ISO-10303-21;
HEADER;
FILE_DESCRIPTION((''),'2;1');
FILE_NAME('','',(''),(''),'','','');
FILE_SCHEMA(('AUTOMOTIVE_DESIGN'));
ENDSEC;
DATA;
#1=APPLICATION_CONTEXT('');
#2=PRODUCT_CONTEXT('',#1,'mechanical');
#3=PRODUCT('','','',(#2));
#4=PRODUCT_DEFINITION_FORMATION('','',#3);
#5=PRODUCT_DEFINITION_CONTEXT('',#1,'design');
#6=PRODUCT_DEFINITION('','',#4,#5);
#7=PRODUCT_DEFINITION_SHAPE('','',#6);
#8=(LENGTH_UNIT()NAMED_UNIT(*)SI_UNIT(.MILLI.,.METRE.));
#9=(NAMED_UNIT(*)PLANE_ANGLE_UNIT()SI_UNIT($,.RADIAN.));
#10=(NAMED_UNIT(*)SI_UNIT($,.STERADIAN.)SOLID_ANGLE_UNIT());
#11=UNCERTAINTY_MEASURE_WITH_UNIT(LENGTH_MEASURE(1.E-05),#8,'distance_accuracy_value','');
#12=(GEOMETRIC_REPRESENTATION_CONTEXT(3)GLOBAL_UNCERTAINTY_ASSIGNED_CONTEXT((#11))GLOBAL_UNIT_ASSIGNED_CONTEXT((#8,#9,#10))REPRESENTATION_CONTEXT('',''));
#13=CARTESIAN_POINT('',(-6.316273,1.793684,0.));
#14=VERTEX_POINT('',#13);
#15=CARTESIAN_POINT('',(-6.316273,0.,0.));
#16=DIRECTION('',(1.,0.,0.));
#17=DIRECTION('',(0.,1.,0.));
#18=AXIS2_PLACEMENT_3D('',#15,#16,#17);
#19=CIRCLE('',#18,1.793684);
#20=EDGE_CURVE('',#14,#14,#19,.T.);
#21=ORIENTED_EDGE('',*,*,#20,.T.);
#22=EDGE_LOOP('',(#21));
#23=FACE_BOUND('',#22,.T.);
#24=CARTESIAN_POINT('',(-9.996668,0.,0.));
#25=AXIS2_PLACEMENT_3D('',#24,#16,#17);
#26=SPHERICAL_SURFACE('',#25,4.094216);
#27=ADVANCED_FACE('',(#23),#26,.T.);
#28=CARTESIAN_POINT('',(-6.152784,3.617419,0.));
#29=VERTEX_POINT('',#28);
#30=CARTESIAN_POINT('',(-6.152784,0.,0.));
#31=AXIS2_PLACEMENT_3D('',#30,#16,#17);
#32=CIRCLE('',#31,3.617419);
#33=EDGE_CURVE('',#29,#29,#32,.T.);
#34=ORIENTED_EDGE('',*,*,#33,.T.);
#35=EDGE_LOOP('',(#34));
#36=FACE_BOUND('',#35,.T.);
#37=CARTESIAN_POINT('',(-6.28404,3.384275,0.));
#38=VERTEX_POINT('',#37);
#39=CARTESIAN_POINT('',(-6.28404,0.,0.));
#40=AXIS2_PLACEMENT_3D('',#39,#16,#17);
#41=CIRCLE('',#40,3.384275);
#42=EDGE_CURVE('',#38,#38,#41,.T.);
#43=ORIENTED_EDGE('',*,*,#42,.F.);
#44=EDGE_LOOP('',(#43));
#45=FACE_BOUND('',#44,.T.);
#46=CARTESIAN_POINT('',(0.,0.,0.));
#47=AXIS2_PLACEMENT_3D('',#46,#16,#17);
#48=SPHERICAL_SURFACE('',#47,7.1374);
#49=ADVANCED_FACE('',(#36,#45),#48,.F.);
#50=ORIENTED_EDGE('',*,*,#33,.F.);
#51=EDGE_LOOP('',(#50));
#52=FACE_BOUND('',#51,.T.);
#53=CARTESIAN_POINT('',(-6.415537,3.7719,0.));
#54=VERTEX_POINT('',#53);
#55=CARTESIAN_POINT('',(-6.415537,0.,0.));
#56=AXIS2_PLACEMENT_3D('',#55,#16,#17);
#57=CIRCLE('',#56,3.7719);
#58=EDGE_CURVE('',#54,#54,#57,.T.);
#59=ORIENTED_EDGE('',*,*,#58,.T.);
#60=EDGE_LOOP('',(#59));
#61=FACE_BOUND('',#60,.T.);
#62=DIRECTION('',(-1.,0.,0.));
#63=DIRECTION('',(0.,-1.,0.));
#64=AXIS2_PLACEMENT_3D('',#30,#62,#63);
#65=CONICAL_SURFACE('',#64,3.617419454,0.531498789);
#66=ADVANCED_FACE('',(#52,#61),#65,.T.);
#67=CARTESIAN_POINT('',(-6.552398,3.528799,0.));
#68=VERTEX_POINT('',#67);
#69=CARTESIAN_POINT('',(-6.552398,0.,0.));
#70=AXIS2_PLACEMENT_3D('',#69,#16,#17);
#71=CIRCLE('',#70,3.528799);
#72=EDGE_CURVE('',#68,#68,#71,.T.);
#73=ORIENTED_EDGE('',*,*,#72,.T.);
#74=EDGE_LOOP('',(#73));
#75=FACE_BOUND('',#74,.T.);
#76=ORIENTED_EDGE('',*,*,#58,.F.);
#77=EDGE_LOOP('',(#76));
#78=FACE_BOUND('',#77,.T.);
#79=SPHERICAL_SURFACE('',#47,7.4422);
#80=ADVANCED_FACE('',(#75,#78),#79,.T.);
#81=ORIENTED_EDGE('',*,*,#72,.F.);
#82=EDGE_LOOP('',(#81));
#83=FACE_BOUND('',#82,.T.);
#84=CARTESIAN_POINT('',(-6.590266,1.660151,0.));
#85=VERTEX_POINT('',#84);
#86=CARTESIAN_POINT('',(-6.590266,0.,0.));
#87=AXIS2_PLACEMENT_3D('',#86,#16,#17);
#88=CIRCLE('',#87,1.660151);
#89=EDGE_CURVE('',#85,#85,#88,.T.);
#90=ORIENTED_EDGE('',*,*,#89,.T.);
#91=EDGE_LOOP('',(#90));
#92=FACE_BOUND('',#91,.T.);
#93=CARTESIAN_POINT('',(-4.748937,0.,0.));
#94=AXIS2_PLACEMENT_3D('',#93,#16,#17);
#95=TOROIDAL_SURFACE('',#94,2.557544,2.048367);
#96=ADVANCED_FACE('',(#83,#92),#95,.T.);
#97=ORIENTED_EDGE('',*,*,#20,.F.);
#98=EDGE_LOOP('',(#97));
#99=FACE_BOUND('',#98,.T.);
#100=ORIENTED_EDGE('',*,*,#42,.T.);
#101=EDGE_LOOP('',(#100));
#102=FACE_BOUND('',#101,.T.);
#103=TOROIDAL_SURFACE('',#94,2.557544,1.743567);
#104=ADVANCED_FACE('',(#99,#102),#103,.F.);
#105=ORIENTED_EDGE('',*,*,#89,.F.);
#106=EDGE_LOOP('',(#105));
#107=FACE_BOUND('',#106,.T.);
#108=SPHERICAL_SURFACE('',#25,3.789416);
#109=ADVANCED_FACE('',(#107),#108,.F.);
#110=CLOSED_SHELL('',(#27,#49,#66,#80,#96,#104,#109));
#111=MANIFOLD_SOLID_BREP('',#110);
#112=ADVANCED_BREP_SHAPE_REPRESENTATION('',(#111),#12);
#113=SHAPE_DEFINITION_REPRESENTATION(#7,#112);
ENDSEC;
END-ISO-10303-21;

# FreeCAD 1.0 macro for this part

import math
import FreeCAD as App
import Part
import Sketcher
from FreeCAD import Vector
Q = App.Units.Quantity

doc = App.newDocument("Part")
body = doc.addObject("PartDesign::Body", "Body")

sketch1 = body.newObject("Sketcher::SketchObject", "Sketch")
sketch1.AttachmentSupport = (doc.getObject("XY_Plane"), [""])
sketch1.MapMode = "FlatFace"
sketch1.addGeometry([
    Part.LineSegment(Vector(-6.207252, 0, 0), Vector(-5.902452, 0, 0)),
    Part.ArcOfCircle(Part.Circle(Vector(-9.996668, 0, 0), Vector(0, 0, 1), 4.094216), math.radians(0), math.radians(25.982842)),
    Part.ArcOfCircle(Part.Circle(Vector(-4.748937, 2.557544, 0), Vector(0, 0, 1), 1.743567), math.radians(151.695278), math.radians(205.982842)),
    Part.ArcOfCircle(Part.Circle(Vector(0.000001, 0, 0), Vector(0, 0, 1), 7.137401), math.radians(149.547363), math.radians(151.695277)),
    Part.LineSegment(Vector(-6.152784, 3.617419, 0), Vector(-6.415537, 3.7719, 0)),
    Part.ArcOfCircle(Part.Circle(Vector(0, 0, 0), Vector(0, 0, 1), 7.4422), math.radians(149.547362), math.radians(151.695277)),
    Part.ArcOfCircle(Part.Circle(Vector(-4.748937, 2.557544, 0), Vector(0, 0, 1), 2.048367), math.radians(151.695278), math.radians(205.982842)),
    Part.ArcOfCircle(Part.Circle(Vector(-9.996668, 0, 0), Vector(0, 0, 1), 3.789416), math.radians(0), math.radians(25.982842)),
], False)
sketch1.addConstraint([
    Sketcher.Constraint("Coincident", 0, 2, 1, 1),
    Sketcher.Constraint("Tangent", 1, 2, 2, 2),
    Sketcher.Constraint("Tangent", 2, 1, 3, 2),
    Sketcher.Constraint("Coincident", 3, 1, 4, 1),
    Sketcher.Constraint("Coincident", 4, 2, 5, 1),
    Sketcher.Constraint("Tangent", 5, 2, 6, 1),
    Sketcher.Constraint("Tangent", 6, 2, 7, 2),
    Sketcher.Constraint("Coincident", 7, 1, 0, 1),
    Sketcher.Constraint("Horizontal", 0),
    Sketcher.Constraint("Coincident", 3, 3, -1, 1),
    Sketcher.Constraint("Coincident", 5, 3, -1, 1),
    Sketcher.Constraint("Coincident", 6, 3, 2, 3),
    Sketcher.Constraint("Coincident", 7, 3, 1, 3),
    Sketcher.Constraint("PointOnObject", 1, 3, -1),
    Sketcher.Constraint("PointOnObject", 0, 2, -1),
    Sketcher.Constraint("Radius", 3, Q("0.281 in")),
    Sketcher.Constraint("Radius", 5, Q("0.293 in")),
    Sketcher.Constraint("DistanceY", -1, 1, 4, 2, Q("0.1485 in")),
    Sketcher.Constraint("Radius", 1, Q("4.094216 mm")),
    Sketcher.Constraint("Radius", 2, Q("1.743567 mm")),
    Sketcher.Constraint("DistanceY", -1, 1, 5, 2, Q("3.528799 mm")),
    Sketcher.Constraint("DistanceY", -1, 1, 3, 1, Q("3.617419 mm")),
])
revolution = body.newObject("PartDesign::Revolution", "Revolution")
revolution.Profile = sketch1
revolution.ReferenceAxis = (sketch1, ["H_Axis"])
revolution.Angle = 360

doc.recompute()
